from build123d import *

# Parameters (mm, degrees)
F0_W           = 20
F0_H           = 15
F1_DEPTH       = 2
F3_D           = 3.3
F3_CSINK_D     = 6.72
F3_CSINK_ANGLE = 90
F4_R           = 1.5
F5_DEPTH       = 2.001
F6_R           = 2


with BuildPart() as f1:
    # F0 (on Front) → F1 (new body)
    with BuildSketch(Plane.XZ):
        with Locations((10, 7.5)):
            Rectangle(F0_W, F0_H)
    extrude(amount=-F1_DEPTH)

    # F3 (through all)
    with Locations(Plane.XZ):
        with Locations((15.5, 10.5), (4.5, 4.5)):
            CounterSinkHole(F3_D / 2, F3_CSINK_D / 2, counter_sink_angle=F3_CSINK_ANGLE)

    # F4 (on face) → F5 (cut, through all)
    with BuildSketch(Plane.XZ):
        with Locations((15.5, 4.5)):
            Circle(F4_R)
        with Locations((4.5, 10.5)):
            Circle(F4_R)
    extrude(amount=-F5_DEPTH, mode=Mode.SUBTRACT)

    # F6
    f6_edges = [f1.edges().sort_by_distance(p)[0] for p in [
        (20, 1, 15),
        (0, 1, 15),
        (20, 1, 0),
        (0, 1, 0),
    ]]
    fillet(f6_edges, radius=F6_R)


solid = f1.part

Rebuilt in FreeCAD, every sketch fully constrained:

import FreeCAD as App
import Part
import Sketcher
from FreeCAD import Vector
Q = App.Units.Quantity


def edges_at(feature, points):
    """Names of the edges that pass closest to the given points."""
    edges = feature.Shape.Edges
    near = lambda p: min(range(len(edges)), key=lambda i: edges[i].distToShape(Part.Vertex(*p))[0])
    return sorted({f"Edge{near(p) + 1}" for p in points})


def add_polygon(sketch, points):
    """Adds a closed chain of lines whose ends are joined by coincident constraints."""
    first, n = sketch.GeometryCount, len(points)
    for a, b in zip(points, points[1:] + points[:1]):
        sketch.addGeometry(Part.LineSegment(App.Vector(*a, 0), App.Vector(*b, 0)), False)
    for i in range(n):
        sketch.addConstraint(Sketcher.Constraint("Coincident", first + i, 2, first + (i + 1) % n, 1))

doc = App.newDocument("Part")
params = doc.addObject("Spreadsheet::Sheet", "Params")
for row, (alias, value) in enumerate([
    ("sketch1_width", "20 mm"),
    ("sketch1_height", "15 mm"),
    ("pad1_length", "2 mm"),
    ("sketch2_diameter", "3.3 mm"),
    ("hole_diameter", "3.3 mm"),
    ("hole_csink_diameter", "6.72 mm"),
    ("sketch3_diameter", "3 mm"),
    ("fillet_radius", "2 mm"),
], start=1):
    params.set(f"A{row}", alias)
    params.set(f"B{row}", "=" + value)
    params.setAlias(f"B{row}", alias)

body = doc.addObject("PartDesign::Body", "Body")

sketch1 = doc.addObject("Sketcher::SketchObject", "Sketch")
body.addObject(sketch1)
sketch1.AttachmentSupport = (doc.XZ_Plane, [""])
sketch1.MapMode = "FlatFace"
add_polygon(sketch1, [(0, 15), (0, 0), (20, 0), (20, 15)])
sketch1.addConstraint([
    Sketcher.Constraint("Vertical", 0),
    Sketcher.Constraint("Horizontal", 1),
    Sketcher.Constraint("Vertical", 2),
    Sketcher.Constraint("Horizontal", 3),
    Sketcher.Constraint("Coincident", 0, 2, -1, 1),
    Sketcher.Constraint("DistanceX", 1, 1, 1, 2, Q("20 mm")),
    Sketcher.Constraint("DistanceY", 0, 2, 0, 1, Q("15 mm")),
])
sketch1.setExpression("Constraints[9]", "Params.sketch1_width")
sketch1.setExpression("Constraints[10]", "Params.sketch1_height")
pad1 = doc.addObject("PartDesign::Pad", "Pad")
body.addObject(pad1)
pad1.Profile = sketch1
pad1.setExpression("Length", "Params.pad1_length")
pad1.Reversed = True

sketch2 = doc.addObject("Sketcher::SketchObject", "Sketch001")
body.addObject(sketch2)
sketch2.AttachmentSupport = (doc.XZ_Plane, [""])
sketch2.MapMode = "FlatFace"
sketch2.addGeometry([
    Part.Circle(Vector(15.5, 10.5, 0), Vector(0, 0, 1), 1.6),
    Part.Circle(Vector(4.5, 4.5, 0), Vector(0, 0, 1), 1.6),
], False)
sketch2.addConstraint([
    Sketcher.Constraint("Equal", 0, 1),
    Sketcher.Constraint("Diameter", 0, Q("3.3 mm")),
    Sketcher.Constraint("DistanceX", 1, 3, 0, 3, Q("11 mm")),
    Sketcher.Constraint("DistanceY", 1, 3, 0, 3, Q("6 mm")),
    Sketcher.Constraint("DistanceX", -1, 1, 0, 3, Q("15.5 mm")),
    Sketcher.Constraint("DistanceY", -1, 1, 0, 3, Q("10.5 mm")),
])
sketch2.setExpression("Constraints[1]", "Params.sketch2_diameter")
doc.recompute()
hole = doc.addObject("PartDesign::Hole", "Hole")
body.addObject(hole)
hole.Profile = sketch2
hole.ThreadType = "None"
hole.setExpression("Diameter", "Params.hole_diameter")
hole.DepthType = "ThroughAll"
hole.HoleCutType = "Countersink"
hole.setExpression("HoleCutDiameter", "Params.hole_csink_diameter")
hole.HoleCutCountersinkAngle = 90

sketch3 = doc.addObject("Sketcher::SketchObject", "Sketch002")
body.addObject(sketch3)
sketch3.AttachmentSupport = (doc.XZ_Plane, [""])
sketch3.MapMode = "FlatFace"
sketch3.addGeometry([
    Part.Circle(Vector(15.5, 4.5, 0), Vector(0, 0, 1), 1.5),
    Part.Circle(Vector(4.5, 10.5, 0), Vector(0, 0, 1), 1.5),
], False)
sketch3.addConstraint([
    Sketcher.Constraint("Equal", 0, 1),
    Sketcher.Constraint("Diameter", 0, Q("3 mm")),
    Sketcher.Constraint("DistanceX", 1, 3, 0, 3, Q("11 mm")),
    Sketcher.Constraint("DistanceY", 0, 3, 1, 3, Q("6 mm")),
    Sketcher.Constraint("DistanceX", -1, 1, 0, 3, Q("15.5 mm")),
    Sketcher.Constraint("DistanceY", -1, 1, 0, 3, Q("4.5 mm")),
])
sketch3.setExpression("Constraints[1]", "Params.sketch3_diameter")
pocket1 = doc.addObject("PartDesign::Pocket", "Pocket")
body.addObject(pocket1)
pocket1.Profile = sketch3
pocket1.Type = "ThroughAll"
doc.recompute()

fillet = doc.addObject("PartDesign::Fillet", "Fillet")
body.addObject(fillet)
fillet.Base = (pocket1, edges_at(pocket1, [
    (20, 1, 15),
    (0, 1, 15),
    (20, 1, 0),
    (0, 1, 0),
]))
fillet.setExpression("Radius", "Params.fillet_radius")

doc.recompute()
